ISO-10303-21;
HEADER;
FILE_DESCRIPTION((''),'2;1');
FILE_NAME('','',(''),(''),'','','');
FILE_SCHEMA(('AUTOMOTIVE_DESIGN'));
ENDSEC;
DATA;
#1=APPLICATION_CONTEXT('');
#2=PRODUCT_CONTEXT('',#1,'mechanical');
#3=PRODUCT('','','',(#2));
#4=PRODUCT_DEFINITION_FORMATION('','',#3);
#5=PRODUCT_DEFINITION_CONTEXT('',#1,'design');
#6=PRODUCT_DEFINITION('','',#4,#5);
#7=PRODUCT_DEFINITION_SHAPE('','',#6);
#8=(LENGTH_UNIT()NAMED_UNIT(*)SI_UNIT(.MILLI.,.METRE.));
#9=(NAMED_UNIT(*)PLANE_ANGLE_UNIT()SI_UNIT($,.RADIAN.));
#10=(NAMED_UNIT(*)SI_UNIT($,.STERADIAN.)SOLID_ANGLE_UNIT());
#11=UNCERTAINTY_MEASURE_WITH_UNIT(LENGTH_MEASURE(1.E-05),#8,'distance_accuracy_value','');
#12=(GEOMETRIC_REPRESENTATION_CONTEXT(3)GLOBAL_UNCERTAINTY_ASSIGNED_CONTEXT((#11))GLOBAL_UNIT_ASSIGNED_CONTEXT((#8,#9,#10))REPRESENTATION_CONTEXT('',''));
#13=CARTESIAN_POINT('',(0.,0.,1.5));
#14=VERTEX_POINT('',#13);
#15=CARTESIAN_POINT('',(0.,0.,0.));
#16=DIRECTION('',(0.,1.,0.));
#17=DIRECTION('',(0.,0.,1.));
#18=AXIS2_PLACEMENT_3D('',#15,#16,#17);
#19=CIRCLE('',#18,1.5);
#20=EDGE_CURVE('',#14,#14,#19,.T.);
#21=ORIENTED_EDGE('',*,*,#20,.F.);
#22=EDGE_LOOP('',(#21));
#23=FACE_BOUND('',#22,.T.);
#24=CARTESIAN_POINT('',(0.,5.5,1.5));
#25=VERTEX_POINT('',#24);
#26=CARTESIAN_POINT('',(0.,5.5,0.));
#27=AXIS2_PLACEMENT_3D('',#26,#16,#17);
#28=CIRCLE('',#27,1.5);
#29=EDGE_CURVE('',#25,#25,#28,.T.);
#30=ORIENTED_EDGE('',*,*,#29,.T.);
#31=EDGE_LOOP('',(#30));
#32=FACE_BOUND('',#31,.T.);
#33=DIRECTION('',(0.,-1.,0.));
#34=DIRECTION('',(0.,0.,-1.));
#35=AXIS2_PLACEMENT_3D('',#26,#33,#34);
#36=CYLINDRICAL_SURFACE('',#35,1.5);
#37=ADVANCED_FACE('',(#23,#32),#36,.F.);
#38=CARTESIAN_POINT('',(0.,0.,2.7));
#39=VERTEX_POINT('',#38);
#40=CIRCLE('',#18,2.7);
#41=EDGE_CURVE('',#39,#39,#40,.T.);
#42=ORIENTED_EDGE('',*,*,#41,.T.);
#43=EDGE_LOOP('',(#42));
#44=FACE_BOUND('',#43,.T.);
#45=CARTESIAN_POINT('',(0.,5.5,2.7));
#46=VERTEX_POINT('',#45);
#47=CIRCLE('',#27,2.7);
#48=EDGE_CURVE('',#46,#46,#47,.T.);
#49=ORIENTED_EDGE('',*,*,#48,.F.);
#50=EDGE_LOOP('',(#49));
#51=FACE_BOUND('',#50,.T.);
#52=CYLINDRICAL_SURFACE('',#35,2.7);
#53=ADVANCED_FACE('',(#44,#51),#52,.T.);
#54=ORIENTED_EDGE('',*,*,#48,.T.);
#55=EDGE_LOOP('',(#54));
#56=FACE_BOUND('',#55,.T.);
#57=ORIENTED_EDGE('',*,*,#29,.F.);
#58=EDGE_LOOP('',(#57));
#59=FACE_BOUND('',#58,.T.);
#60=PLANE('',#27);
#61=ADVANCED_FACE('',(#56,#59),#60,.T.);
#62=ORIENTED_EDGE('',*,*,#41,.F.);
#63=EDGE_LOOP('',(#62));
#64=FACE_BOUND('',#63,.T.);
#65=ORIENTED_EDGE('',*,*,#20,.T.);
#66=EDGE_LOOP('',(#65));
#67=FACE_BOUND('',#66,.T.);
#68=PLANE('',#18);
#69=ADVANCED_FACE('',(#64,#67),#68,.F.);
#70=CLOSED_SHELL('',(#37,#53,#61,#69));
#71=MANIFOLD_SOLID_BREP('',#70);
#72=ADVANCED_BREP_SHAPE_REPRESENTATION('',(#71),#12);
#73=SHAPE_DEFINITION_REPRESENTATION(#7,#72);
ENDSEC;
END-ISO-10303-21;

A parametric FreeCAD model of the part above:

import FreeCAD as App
import Part
import Sketcher

V = App.Vector
Q = App.Units.Quantity

doc = App.newDocument("Part")
body = doc.addObject("PartDesign::Body", "Body")

# Sketch on XZ plane
sketch1 = body.newObject("Sketcher::SketchObject", "Sketch")
sketch1.AttachmentSupport = (doc.getObject("XZ_Plane"), [""])
sketch1.MapMode = "FlatFace"
sketch1.addGeometry([
    Part.Circle(V(0, 0, 0), V(0, 0, 1), 2.7),
    Part.Circle(V(0, 0, 0), V(0, 0, 1), 1.5),
], False)
sketch1.addConstraint([
    Sketcher.Constraint("Coincident", 0, 3, -1, 1),
    Sketcher.Constraint("Coincident", 1, 3, -1, 1),
    Sketcher.Constraint("Diameter", 1, Q("3 mm")),
    Sketcher.Constraint("Diameter", 0, Q("5.4 mm")),
])
pad1 = body.newObject("PartDesign::Pad", "Pad")
pad1.Profile = sketch1
pad1.Length = 5.5
pad1.Reversed = True

doc.recompute()
